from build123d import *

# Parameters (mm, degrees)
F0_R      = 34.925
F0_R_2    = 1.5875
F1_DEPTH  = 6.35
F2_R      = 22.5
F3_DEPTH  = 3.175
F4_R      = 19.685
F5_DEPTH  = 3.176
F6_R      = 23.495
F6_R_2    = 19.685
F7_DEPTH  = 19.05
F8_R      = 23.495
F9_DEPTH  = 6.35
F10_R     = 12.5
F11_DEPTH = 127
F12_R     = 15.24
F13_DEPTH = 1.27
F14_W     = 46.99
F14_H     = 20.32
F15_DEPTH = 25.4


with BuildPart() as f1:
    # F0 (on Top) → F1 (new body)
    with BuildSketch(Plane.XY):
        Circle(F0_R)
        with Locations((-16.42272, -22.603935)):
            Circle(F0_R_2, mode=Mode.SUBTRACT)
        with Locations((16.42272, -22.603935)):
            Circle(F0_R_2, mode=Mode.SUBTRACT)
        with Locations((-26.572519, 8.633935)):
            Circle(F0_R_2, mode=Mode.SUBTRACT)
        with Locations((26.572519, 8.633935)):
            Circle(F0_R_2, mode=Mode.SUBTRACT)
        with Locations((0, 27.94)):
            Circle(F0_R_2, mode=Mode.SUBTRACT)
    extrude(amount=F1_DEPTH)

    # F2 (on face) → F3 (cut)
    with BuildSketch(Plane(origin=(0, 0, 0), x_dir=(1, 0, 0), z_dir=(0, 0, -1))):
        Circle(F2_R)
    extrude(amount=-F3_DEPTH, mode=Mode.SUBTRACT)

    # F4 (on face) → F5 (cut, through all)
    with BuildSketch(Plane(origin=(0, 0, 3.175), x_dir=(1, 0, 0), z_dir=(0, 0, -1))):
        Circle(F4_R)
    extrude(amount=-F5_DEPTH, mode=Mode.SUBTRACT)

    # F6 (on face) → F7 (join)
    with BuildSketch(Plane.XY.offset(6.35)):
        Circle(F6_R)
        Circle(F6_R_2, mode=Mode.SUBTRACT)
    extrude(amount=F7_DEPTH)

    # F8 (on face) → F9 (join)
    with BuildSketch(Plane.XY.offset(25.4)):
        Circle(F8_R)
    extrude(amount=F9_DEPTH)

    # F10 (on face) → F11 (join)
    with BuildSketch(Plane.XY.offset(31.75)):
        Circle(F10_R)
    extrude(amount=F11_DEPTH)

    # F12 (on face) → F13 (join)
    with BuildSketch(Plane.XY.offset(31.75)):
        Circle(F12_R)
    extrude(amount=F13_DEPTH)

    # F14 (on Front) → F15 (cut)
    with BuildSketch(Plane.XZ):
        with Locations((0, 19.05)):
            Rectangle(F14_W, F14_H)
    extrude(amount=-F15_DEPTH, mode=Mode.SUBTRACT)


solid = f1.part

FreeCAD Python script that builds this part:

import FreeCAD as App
import Part
import Sketcher

V = App.Vector
Q = App.Units.Quantity

doc = App.newDocument("Part")
body = doc.addObject("PartDesign::Body", "Body")

sketch1 = body.newObject("Sketcher::SketchObject", "Sketch")
sketch1.AttachmentSupport = (doc.getObject("XY_Plane"), [""])
sketch1.MapMode = "FlatFace"
sketch1.addGeometry(Part.Circle(V(0, 0, 0), V(0, 0, 1), 34.9), False)
sketch1.addGeometry(Part.Circle(V(-16.4, -22.6, 0), V(0, 0, 1), 1.6), False)
sketch1.addGeometry(Part.Circle(V(16.4, -22.6, 0), V(0, 0, 1), 1.6), False)
sketch1.addGeometry(Part.Circle(V(-26.6, 8.6, 0), V(0, 0, 1), 1.6), False)
sketch1.addGeometry(Part.Circle(V(26.6, 8.6, 0), V(0, 0, 1), 1.6), False)
sketch1.addGeometry(Part.Circle(V(0, 27.9, 0), V(0, 0, 1), 1.6), False)
sketch1.addConstraint(Sketcher.Constraint("Coincident", 0, 3, -1, 1))
sketch1.addConstraint(Sketcher.Constraint("Equal", 1, 2))
sketch1.addConstraint(Sketcher.Constraint("Equal", 2, 3))
sketch1.addConstraint(Sketcher.Constraint("Equal", 3, 4))
sketch1.addConstraint(Sketcher.Constraint("Equal", 4, 5))
sketch1.addConstraint(Sketcher.Constraint("Symmetric", 1, 3, 2, 3, -2))
sketch1.addConstraint(Sketcher.Constraint("Symmetric", 3, 3, 4, 3, -2))
sketch1.addConstraint(Sketcher.Constraint("PointOnObject", 5, 3, -2))
sketch1.addConstraint(Sketcher.Constraint("Diameter", 0, Q("2.75 in")))
sketch1.addConstraint(Sketcher.Constraint("Diameter", 1, Q("0.125 in")))
sketch1.addConstraint(Sketcher.Constraint("DistanceY", -1, 1, 5, 3, Q("1.1 in")))
sketch1.addConstraint(Sketcher.Constraint("DistanceX", 3, 3, 1, 3, 10.149799))
sketch1.addConstraint(Sketcher.Constraint("DistanceX", 1, 3, -1, 1, 16.42272))
sketch1.addConstraint(Sketcher.Constraint("DistanceY", 1, 3, 3, 3, 31.23787))
sketch1.addConstraint(Sketcher.Constraint("DistanceY", 1, 3, -1, 1, 22.603935))
pad1 = body.newObject("PartDesign::Pad", "Pad")
pad1.Profile = sketch1
pad1.Length = Q("0.25 in")

sketch2 = body.newObject("Sketcher::SketchObject", "Sketch001")
sketch2.AttachmentSupport = (doc.getObject("XY_Plane"), [""])
sketch2.MapMode = "FlatFace"
sketch2.addGeometry(Part.Circle(V(0, 0, 0), V(0, 0, 1), 22), False)
sketch2.addConstraint(Sketcher.Constraint("Coincident", 0, 3, -1, 1))
sketch2.addConstraint(Sketcher.Constraint("Diameter", 0, 45.0))
pocket1 = body.newObject("PartDesign::Pocket", "Pocket")
pocket1.Profile = sketch2
pocket1.Length = Q("0.125 in")
pocket1.Reversed = True

sketch3 = body.newObject("Sketcher::SketchObject", "Sketch002")
sketch3.AttachmentSupport = (doc.getObject("XY_Plane"), [""])
sketch3.MapMode = "FlatFace"
sketch3.AttachmentOffset = App.Placement(V(0, 0, 0.125 * 25.4), App.Rotation())
sketch3.addGeometry(Part.Circle(V(0, 0, 0), V(0, 0, 1), 20), False)
sketch3.addConstraint(Sketcher.Constraint("Coincident", 0, 3, -1, 1))
sketch3.addConstraint(Sketcher.Constraint("Diameter", 0, Q("1.55 in")))
pocket2 = body.newObject("PartDesign::Pocket", "Pocket001")
pocket2.Profile = sketch3
pocket2.Type = "ThroughAll"
pocket2.Reversed = True

sketch4 = body.newObject("Sketcher::SketchObject", "Sketch003")
sketch4.AttachmentSupport = (doc.getObject("XY_Plane"), [""])
sketch4.MapMode = "FlatFace"
sketch4.AttachmentOffset = App.Placement(V(0, 0, 0.25 * 25.4), App.Rotation())
sketch4.addGeometry(Part.Circle(V(0, 0, 0), V(0, 0, 1), 23), False)
sketch4.addGeometry(Part.Circle(V(0, 0, 0), V(0, 0, 1), 20), False)
sketch4.addConstraint(Sketcher.Constraint("Coincident", 0, 3, -1, 1))
sketch4.addConstraint(Sketcher.Constraint("Coincident", 1, 3, -1, 1))
sketch4.addConstraint(Sketcher.Constraint("Diameter", 0, Q("1.85 in")))
sketch4.addConstraint(Sketcher.Constraint("Diameter", 1, Q("1.55 in")))
pad2 = body.newObject("PartDesign::Pad", "Pad001")
pad2.Profile = sketch4
pad2.Length = Q("0.75 in")

sketch5 = body.newObject("Sketcher::SketchObject", "Sketch004")
sketch5.AttachmentSupport = (doc.getObject("XY_Plane"), [""])
sketch5.MapMode = "FlatFace"
sketch5.AttachmentOffset = App.Placement(V(0, 0, 1 * 25.4), App.Rotation())
sketch5.addGeometry(Part.Circle(V(0, 0, 0), V(0, 0, 1), 23), False)
sketch5.addConstraint(Sketcher.Constraint("Coincident", 0, 3, -1, 1))
sketch5.addConstraint(Sketcher.Constraint("Diameter", 0, Q("1.85 in")))
pad3 = body.newObject("PartDesign::Pad", "Pad002")
pad3.Profile = sketch5
pad3.Length = Q("0.25 in")

sketch6 = body.newObject("Sketcher::SketchObject", "Sketch005")
sketch6.AttachmentSupport = (doc.getObject("XY_Plane"), [""])
sketch6.MapMode = "FlatFace"
sketch6.AttachmentOffset = App.Placement(V(0, 0, 1.25 * 25.4), App.Rotation())
sketch6.addGeometry(Part.Circle(V(0, 0, 0), V(0, 0, 1), 12), False)
sketch6.addConstraint(Sketcher.Constraint("Coincident", 0, 3, -1, 1))
sketch6.addConstraint(Sketcher.Constraint("Diameter", 0, 25.0))
pad4 = body.newObject("PartDesign::Pad", "Pad003")
pad4.Profile = sketch6
pad4.Length = Q("5 in")

sketch7 = body.newObject("Sketcher::SketchObject", "Sketch006")
sketch7.AttachmentSupport = (doc.getObject("XY_Plane"), [""])
sketch7.MapMode = "FlatFace"
sketch7.AttachmentOffset = App.Placement(V(0, 0, 1.25 * 25.4), App.Rotation())
sketch7.addGeometry(Part.Circle(V(0, 0, 0), V(0, 0, 1), 15), False)
sketch7.addConstraint(Sketcher.Constraint("Coincident", 0, 3, -1, 1))
sketch7.addConstraint(Sketcher.Constraint("Diameter", 0, Q("1.2 in")))
pad5 = body.newObject("PartDesign::Pad", "Pad004")
pad5.Profile = sketch7
pad5.Length = Q("0.05 in")

sketch8 = body.newObject("Sketcher::SketchObject", "Sketch007")
sketch8.AttachmentSupport = (doc.getObject("XZ_Plane"), [""])
sketch8.MapMode = "FlatFace"
sketch8.addGeometry(Part.LineSegment(V(-23, 29, 0), V(-23, 9, 0)), False)
sketch8.addGeometry(Part.LineSegment(V(-23, 9, 0), V(23, 9, 0)), False)
sketch8.addGeometry(Part.LineSegment(V(23, 9, 0), V(23, 29, 0)), False)
sketch8.addGeometry(Part.LineSegment(V(23, 29, 0), V(-23, 29, 0)), False)
sketch8.addConstraint(Sketcher.Constraint("Coincident", 0, 2, 1, 1))
sketch8.addConstraint(Sketcher.Constraint("Coincident", 1, 2, 2, 1))
sketch8.addConstraint(Sketcher.Constraint("Coincident", 2, 2, 3, 1))
sketch8.addConstraint(Sketcher.Constraint("Coincident", 3, 2, 0, 1))
sketch8.addConstraint(Sketcher.Constraint("Vertical", 0))
sketch8.addConstraint(Sketcher.Constraint("Horizontal", 1))
sketch8.addConstraint(Sketcher.Constraint("Vertical", 2))
sketch8.addConstraint(Sketcher.Constraint("Horizontal", 3))
sketch8.addConstraint(Sketcher.Constraint("DistanceY", 0, 2, 0, 1, Q("0.8 in")))
sketch8.addConstraint(Sketcher.Constraint("DistanceX", 1, 1, 1, 2, Q("1.85 in")))
sketch8.addConstraint(Sketcher.Constraint("DistanceY", -1, 1, 0, 2, Q("0.35 in")))
sketch8.addConstraint(Sketcher.Constraint("DistanceX", 0, 2, -1, 1, Q("0.925 in")))
pocket3 = body.newObject("PartDesign::Pocket", "Pocket002")
pocket3.Profile = sketch8
pocket3.Length = Q("1 in")

doc.recompute()
